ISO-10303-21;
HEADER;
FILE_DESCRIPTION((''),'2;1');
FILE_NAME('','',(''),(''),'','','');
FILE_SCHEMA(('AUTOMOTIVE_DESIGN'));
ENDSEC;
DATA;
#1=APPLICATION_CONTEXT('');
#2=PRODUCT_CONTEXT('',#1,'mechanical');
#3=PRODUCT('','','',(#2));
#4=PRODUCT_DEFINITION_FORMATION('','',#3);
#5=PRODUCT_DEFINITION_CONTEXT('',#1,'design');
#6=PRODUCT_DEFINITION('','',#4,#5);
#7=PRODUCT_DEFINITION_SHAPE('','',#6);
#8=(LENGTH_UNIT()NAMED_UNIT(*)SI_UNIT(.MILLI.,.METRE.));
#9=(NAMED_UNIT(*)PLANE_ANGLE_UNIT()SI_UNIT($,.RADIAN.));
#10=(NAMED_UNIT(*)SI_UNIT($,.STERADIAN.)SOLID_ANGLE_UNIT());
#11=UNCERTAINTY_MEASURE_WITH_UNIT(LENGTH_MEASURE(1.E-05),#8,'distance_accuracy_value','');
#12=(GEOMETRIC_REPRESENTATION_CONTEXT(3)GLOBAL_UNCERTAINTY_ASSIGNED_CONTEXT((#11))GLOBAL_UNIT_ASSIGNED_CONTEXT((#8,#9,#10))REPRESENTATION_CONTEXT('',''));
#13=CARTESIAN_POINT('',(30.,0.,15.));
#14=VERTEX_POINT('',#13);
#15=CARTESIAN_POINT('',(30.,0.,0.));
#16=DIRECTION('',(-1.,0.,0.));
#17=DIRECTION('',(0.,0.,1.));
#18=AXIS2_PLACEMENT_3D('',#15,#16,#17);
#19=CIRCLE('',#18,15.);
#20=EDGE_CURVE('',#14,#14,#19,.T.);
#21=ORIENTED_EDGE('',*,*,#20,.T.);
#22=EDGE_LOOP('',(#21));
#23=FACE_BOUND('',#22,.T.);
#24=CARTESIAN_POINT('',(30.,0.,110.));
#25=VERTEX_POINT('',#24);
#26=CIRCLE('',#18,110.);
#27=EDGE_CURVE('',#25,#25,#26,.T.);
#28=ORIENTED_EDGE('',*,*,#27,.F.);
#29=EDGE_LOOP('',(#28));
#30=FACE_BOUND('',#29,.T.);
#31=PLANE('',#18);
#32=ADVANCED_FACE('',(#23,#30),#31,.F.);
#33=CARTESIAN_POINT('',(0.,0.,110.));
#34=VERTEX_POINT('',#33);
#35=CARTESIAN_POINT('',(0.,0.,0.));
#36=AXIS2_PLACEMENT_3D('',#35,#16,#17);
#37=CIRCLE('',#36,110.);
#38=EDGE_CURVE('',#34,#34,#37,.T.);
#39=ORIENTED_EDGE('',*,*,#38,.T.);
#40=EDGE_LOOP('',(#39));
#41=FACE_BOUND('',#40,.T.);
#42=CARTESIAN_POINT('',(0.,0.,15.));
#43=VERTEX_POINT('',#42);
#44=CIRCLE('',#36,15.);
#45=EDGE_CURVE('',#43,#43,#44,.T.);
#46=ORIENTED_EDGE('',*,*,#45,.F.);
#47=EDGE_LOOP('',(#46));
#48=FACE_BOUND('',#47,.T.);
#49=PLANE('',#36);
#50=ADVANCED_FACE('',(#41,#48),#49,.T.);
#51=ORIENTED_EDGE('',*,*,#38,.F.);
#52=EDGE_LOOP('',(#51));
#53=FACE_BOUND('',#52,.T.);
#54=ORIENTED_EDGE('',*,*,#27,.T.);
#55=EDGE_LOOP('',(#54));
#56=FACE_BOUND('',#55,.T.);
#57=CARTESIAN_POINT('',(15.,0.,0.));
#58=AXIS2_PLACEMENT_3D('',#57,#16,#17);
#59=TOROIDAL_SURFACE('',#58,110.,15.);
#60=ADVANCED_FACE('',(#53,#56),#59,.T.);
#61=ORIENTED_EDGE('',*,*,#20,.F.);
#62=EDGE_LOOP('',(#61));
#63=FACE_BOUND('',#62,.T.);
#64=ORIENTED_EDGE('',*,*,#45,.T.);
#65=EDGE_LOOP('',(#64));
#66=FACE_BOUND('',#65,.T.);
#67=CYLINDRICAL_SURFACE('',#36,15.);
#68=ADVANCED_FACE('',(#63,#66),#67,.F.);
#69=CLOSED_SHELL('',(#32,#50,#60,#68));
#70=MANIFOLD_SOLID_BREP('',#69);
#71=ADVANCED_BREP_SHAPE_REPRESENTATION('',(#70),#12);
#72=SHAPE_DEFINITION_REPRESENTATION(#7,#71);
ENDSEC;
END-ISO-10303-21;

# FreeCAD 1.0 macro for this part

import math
import FreeCAD as App
import Part
import Sketcher
from FreeCAD import Vector
Q = App.Units.Quantity

doc = App.newDocument("Part")
body = doc.addObject("PartDesign::Body", "Body")

sketch1 = body.newObject("Sketcher::SketchObject", "Sketch")
sketch1.AttachmentSupport = (doc.getObject("XY_Plane"), [""])
sketch1.MapMode = "FlatFace"
sketch1.addGeometry(Part.ArcOfCircle(Part.Circle(Vector(15, 110, 0), Vector(0, 0, 1), 15), math.radians(0), math.radians(180)), False)
sketch1.addGeometry(Part.LineSegment(Vector(0, 110, 0), Vector(0, 15, 0)), False)
sketch1.addGeometry(Part.LineSegment(Vector(0, 15, 0), Vector(30, 15, 0)), False)
sketch1.addGeometry(Part.LineSegment(Vector(30, 15, 0), Vector(30, 110, 0)), False)
sketch1.addConstraint(Sketcher.Constraint("Tangent", 0, 2, 1, 1))
sketch1.addConstraint(Sketcher.Constraint("Coincident", 1, 2, 2, 1))
sketch1.addConstraint(Sketcher.Constraint("Coincident", 2, 2, 3, 1))
sketch1.addConstraint(Sketcher.Constraint("Tangent", 3, 2, 0, 1))
sketch1.addConstraint(Sketcher.Constraint("Vertical", 1))
sketch1.addConstraint(Sketcher.Constraint("Horizontal", 2))
sketch1.addConstraint(Sketcher.Constraint("Vertical", 3))
sketch1.addConstraint(Sketcher.Constraint("PointOnObject", 0, 2, -2))
sketch1.addConstraint(Sketcher.Constraint("Radius", 0, Q("15 mm")))
sketch1.addConstraint(Sketcher.Constraint("DistanceY", 1, 2, 1, 1, Q("95 mm")))
sketch1.addConstraint(Sketcher.Constraint("DistanceY", -1, 1, 0, 3, Q("110 mm")))
revolution = body.newObject("PartDesign::Revolution", "Revolution")
revolution.Profile = sketch1
revolution.ReferenceAxis = (sketch1, ["H_Axis"])
revolution.Angle = 360

doc.recompute()
